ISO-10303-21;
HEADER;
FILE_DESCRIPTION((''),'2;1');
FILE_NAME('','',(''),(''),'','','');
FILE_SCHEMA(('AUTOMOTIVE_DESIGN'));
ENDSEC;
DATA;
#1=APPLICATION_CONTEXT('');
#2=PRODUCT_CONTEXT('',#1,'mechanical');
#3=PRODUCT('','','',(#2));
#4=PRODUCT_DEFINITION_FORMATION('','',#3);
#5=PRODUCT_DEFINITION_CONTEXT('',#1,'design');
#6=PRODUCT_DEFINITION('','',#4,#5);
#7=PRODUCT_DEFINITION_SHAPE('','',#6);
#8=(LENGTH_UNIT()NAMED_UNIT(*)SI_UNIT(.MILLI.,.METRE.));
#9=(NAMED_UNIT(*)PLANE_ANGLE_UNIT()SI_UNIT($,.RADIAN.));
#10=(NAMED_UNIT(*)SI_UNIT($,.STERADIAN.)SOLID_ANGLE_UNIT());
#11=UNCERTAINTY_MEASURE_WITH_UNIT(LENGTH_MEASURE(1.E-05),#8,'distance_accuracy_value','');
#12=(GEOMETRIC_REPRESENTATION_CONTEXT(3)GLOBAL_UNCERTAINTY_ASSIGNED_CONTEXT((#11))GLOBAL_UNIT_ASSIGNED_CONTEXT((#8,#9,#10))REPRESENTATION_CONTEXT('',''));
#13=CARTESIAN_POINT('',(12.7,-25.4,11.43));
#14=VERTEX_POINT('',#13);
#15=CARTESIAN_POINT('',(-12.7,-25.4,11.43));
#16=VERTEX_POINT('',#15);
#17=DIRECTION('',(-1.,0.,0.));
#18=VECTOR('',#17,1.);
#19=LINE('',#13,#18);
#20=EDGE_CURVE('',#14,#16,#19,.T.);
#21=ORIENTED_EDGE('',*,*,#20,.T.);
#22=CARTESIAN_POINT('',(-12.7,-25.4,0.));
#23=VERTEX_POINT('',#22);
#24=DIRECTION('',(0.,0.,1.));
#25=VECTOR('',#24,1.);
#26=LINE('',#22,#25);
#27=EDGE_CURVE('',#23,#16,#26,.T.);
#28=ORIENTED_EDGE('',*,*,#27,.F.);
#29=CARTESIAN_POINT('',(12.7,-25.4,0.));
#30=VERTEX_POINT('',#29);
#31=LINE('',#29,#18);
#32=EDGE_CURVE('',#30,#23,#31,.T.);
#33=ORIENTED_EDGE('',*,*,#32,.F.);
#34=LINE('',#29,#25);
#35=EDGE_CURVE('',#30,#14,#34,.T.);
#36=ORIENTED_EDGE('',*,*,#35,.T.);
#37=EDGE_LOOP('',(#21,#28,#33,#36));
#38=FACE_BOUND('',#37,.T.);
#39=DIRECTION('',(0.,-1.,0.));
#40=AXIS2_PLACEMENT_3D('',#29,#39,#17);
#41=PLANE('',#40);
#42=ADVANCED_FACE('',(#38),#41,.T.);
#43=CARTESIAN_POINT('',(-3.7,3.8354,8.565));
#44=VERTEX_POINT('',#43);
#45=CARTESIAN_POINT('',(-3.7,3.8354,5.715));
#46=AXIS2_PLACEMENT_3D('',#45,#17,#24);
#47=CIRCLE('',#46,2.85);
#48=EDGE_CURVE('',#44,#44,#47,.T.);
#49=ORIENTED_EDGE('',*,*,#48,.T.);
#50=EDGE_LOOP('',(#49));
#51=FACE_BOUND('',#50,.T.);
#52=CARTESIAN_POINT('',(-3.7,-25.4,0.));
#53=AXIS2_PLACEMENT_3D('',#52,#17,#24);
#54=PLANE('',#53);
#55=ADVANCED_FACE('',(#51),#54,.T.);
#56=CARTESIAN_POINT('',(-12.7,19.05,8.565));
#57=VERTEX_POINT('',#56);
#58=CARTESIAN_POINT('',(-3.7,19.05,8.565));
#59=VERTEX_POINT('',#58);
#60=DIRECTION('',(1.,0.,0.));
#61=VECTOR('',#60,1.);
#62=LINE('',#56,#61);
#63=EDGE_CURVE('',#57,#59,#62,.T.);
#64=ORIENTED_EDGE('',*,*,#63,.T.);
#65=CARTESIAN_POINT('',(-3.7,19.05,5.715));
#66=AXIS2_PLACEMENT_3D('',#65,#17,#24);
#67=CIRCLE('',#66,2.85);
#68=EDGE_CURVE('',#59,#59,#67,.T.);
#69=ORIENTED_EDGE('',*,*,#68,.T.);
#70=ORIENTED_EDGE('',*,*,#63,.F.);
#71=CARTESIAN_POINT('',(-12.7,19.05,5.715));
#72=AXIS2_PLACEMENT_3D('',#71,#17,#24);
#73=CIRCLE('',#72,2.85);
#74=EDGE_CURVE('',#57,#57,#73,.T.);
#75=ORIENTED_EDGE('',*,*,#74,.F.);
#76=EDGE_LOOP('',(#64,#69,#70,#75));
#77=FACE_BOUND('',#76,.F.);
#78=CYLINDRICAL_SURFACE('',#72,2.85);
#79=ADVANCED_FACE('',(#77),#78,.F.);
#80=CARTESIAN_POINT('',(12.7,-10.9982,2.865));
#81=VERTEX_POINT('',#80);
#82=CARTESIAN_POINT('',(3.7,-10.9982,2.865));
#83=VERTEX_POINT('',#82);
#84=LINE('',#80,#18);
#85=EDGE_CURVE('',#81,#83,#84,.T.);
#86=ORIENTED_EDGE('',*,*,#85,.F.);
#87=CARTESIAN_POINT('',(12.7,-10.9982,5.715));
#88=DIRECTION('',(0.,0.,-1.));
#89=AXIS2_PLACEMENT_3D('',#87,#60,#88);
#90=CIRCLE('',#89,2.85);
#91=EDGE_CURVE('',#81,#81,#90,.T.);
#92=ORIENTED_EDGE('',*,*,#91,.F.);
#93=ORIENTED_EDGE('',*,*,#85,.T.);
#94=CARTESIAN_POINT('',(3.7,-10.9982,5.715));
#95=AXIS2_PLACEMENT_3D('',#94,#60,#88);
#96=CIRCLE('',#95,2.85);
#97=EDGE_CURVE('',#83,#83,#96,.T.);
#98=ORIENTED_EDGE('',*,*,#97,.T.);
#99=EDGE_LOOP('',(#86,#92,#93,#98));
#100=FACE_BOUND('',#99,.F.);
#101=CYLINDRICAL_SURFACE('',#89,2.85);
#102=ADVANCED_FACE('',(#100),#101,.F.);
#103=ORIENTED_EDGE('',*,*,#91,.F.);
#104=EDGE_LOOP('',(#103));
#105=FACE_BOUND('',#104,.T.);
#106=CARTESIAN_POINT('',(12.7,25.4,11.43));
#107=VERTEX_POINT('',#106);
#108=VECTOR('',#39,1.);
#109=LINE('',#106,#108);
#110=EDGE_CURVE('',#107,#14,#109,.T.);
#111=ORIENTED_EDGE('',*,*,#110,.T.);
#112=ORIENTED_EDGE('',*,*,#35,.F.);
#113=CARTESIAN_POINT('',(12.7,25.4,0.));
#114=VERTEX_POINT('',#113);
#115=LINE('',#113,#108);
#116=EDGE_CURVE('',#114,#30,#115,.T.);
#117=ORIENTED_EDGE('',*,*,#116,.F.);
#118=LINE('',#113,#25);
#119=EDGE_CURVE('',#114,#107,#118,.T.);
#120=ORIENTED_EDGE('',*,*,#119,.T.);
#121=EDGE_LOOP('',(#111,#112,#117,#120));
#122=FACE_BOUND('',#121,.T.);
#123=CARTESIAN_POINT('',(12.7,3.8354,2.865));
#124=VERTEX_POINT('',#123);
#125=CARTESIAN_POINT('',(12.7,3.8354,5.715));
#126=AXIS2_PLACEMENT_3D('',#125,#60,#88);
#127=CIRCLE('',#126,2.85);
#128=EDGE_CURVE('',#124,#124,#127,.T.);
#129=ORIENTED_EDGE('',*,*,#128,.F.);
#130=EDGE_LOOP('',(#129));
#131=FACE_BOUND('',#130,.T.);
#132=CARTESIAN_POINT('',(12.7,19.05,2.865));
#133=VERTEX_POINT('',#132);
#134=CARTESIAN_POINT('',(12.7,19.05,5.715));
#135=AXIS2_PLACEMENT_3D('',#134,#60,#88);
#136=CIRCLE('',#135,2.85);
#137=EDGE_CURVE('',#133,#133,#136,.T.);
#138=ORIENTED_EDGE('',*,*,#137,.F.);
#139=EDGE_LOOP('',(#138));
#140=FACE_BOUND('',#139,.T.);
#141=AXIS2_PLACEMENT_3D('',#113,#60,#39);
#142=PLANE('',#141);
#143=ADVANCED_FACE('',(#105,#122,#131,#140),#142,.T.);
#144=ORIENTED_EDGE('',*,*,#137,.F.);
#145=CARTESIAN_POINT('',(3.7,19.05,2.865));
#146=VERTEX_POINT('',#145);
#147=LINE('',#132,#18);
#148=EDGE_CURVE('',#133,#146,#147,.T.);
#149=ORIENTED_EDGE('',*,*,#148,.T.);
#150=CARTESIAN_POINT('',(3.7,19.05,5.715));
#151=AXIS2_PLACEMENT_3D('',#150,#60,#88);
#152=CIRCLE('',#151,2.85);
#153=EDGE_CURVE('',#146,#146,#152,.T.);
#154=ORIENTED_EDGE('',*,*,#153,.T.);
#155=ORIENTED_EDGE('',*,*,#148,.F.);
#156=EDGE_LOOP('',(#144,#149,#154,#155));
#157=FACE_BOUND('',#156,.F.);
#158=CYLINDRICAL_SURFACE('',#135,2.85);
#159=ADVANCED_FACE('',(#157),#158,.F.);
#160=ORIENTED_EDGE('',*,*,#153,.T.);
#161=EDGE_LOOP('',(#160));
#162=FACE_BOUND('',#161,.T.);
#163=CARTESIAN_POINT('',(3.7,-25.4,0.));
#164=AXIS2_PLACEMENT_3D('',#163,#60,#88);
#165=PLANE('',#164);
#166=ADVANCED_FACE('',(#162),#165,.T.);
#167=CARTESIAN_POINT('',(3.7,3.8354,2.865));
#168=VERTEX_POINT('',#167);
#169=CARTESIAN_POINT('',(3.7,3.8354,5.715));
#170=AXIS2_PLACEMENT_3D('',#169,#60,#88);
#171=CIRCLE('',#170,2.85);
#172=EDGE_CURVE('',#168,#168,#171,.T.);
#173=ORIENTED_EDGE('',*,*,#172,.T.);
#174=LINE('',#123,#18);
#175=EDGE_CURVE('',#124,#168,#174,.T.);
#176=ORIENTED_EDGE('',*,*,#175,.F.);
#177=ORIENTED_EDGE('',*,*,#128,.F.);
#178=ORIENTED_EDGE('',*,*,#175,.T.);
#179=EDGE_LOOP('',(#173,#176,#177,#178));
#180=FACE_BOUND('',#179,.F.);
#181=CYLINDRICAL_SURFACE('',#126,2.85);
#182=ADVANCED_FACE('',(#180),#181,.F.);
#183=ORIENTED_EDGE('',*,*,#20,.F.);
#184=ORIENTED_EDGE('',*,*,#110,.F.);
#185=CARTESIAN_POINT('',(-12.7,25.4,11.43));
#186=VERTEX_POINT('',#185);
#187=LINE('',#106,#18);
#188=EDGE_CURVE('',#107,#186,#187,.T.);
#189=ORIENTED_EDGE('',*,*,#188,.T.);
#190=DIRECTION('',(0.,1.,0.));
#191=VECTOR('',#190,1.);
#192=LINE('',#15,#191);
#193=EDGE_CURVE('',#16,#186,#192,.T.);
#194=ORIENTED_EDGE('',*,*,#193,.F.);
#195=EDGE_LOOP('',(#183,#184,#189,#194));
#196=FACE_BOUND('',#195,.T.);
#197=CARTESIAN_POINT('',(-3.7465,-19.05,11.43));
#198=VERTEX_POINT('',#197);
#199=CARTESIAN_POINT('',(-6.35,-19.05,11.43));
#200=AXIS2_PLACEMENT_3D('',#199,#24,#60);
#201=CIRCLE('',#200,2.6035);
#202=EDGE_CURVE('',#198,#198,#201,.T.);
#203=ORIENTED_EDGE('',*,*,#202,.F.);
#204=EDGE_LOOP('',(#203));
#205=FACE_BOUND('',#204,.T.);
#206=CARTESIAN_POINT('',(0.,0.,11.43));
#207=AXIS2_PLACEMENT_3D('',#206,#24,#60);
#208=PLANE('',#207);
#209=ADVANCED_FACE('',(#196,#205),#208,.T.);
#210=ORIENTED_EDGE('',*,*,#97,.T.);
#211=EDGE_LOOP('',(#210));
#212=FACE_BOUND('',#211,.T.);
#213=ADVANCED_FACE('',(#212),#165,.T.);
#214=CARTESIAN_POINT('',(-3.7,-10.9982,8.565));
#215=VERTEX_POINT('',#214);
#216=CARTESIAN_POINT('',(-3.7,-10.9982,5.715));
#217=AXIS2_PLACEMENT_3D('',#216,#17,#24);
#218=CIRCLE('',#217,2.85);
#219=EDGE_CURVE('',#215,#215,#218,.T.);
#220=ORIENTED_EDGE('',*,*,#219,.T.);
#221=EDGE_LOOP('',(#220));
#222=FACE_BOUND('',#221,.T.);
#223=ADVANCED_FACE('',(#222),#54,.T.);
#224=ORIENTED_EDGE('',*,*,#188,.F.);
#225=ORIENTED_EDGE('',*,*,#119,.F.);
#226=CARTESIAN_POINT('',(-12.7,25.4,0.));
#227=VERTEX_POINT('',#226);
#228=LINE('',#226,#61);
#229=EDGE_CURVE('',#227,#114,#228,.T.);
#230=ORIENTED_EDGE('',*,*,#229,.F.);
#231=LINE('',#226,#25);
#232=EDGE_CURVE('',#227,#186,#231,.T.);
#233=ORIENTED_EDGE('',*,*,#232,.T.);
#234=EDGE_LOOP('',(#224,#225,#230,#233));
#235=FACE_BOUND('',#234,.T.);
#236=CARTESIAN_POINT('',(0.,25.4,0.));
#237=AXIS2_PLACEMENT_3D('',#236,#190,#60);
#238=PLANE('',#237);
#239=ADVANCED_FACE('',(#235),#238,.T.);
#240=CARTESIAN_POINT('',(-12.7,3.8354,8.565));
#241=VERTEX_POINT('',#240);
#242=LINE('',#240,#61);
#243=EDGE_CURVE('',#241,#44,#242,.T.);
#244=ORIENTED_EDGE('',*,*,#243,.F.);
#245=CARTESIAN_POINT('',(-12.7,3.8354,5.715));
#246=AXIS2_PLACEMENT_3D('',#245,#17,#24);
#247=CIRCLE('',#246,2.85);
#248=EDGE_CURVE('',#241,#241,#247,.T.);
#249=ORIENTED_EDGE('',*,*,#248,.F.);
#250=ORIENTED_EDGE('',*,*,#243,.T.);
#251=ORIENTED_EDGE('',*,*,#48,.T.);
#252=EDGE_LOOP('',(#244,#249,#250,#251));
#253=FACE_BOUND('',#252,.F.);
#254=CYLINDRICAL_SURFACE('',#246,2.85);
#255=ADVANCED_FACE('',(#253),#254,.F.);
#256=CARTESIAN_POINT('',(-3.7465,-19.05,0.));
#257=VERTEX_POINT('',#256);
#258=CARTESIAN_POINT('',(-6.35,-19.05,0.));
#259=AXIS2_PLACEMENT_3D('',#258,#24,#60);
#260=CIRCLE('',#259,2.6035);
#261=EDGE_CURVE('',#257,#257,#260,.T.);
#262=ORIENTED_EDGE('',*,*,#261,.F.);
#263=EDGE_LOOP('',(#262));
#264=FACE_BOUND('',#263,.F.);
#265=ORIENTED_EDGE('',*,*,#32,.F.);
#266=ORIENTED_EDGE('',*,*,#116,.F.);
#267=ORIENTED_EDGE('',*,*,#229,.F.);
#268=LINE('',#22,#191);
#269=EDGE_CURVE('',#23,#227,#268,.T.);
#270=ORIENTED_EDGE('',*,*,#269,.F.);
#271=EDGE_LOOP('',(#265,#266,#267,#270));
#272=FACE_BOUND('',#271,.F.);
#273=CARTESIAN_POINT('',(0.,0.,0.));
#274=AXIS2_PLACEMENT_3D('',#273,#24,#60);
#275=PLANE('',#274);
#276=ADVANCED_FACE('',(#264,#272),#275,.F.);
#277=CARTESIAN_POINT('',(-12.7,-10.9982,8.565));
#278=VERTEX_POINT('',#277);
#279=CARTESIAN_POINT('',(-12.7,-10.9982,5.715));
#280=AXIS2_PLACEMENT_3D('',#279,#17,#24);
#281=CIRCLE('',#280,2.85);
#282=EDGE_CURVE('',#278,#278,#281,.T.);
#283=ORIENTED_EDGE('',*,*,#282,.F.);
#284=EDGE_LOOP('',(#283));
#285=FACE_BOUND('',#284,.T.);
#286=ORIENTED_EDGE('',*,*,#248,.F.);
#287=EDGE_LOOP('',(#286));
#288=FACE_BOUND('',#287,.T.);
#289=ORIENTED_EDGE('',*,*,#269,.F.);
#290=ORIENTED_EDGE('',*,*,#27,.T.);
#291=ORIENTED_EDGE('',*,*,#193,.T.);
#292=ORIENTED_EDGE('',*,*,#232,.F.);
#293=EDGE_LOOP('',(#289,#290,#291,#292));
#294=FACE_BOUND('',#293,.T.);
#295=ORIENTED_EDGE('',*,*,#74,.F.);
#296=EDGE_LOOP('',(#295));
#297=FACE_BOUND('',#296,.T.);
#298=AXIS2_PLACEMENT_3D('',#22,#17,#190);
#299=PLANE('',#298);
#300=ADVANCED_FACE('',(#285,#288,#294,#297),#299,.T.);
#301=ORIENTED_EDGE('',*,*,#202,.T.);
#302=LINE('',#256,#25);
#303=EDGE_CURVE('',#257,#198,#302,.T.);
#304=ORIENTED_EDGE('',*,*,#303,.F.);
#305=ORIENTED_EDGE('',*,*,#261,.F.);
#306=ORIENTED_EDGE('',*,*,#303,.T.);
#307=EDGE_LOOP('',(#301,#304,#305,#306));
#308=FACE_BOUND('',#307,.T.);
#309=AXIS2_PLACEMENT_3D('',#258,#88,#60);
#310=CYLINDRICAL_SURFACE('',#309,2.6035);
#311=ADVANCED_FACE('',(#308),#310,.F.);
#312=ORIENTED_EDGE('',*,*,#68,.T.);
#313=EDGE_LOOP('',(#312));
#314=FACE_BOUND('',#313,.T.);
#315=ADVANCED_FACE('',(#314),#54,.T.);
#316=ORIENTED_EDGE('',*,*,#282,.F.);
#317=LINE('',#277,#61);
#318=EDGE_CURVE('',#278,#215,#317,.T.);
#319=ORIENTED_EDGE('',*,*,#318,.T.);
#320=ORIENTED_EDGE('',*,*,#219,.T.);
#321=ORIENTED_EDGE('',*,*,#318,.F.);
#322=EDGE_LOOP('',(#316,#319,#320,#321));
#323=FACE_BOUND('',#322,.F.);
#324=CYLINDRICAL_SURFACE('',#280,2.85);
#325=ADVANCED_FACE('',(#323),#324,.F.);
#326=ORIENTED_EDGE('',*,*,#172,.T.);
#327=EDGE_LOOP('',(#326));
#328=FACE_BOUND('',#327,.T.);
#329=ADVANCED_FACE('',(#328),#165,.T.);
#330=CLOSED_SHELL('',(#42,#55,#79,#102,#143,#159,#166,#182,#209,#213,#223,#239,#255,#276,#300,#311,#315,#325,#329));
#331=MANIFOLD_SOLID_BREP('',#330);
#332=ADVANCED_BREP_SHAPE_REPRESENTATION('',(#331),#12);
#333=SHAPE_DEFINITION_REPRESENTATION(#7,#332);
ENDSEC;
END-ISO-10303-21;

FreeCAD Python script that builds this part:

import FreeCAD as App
import Part
import Sketcher

V = App.Vector
Q = App.Units.Quantity

doc = App.newDocument("Part")
params = doc.addObject("Spreadsheet::Sheet", "Params")
for row, (alias, value) in enumerate([
    ("sketch1_width", "1 in"),
    ("sketch1_height", "2 in"),
    ("sketch1_diameter", "0.205 in"),
    ("pad1_length", "0.45 in"),
    ("pocket1_length", "9 mm"),
    ("pocket2_length", "9 mm"),
], start=1):
    params.set(f"A{row}", alias)
    params.set(f"B{row}", "=" + value)
    params.setAlias(f"B{row}", alias)

body = doc.addObject("PartDesign::Body", "Body")

# Sketch on XY plane
sketch1 = body.newObject("Sketcher::SketchObject", "Sketch")
sketch1.AttachmentSupport = (doc.getObject("XY_Plane"), [""])
sketch1.MapMode = "FlatFace"
sketch1.addGeometry(Part.LineSegment(V(-12.7, -25.4, 0), V(12.7, -25.4, 0)), False)
sketch1.addGeometry(Part.LineSegment(V(12.7, -25.4, 0), V(12.7, 25.4, 0)), False)
sketch1.addGeometry(Part.LineSegment(V(12.7, 25.4, 0), V(-12.7, 25.4, 0)), False)
sketch1.addGeometry(Part.LineSegment(V(-12.7, 25.4, 0), V(-12.7, -25.4, 0)), False)
sketch1.addGeometry(Part.Circle(V(-6.35, -19.05, 0), V(0, 0, 1), 2.6035), False)
sketch1.addConstraint(Sketcher.Constraint("Coincident", 0, 2, 1, 1))
sketch1.addConstraint(Sketcher.Constraint("Coincident", 1, 2, 2, 1))
sketch1.addConstraint(Sketcher.Constraint("Coincident", 2, 2, 3, 1))
sketch1.addConstraint(Sketcher.Constraint("Coincident", 3, 2, 0, 1))
sketch1.addConstraint(Sketcher.Constraint("Horizontal", 0))
sketch1.addConstraint(Sketcher.Constraint("Vertical", 1))
sketch1.addConstraint(Sketcher.Constraint("Horizontal", 2))
sketch1.addConstraint(Sketcher.Constraint("Vertical", 3))
sketch1.addConstraint(Sketcher.Constraint("Symmetric", 0, 2, 2, 2, -1, 1))
sketch1.addConstraint(Sketcher.Constraint("DistanceX", 0, 1, 0, 2, Q("1 in")))
sketch1.addConstraint(Sketcher.Constraint("DistanceY", 1, 1, 1, 2, Q("2 in")))
sketch1.addConstraint(Sketcher.Constraint("Diameter", 4, Q("0.205 in")))
sketch1.addConstraint(Sketcher.Constraint("DistanceX", 4, 3, -1, 1, Q("0.25 in")))
sketch1.addConstraint(Sketcher.Constraint("DistanceY", 0, 2, 4, 3, Q("0.25 in")))
sketch1.setExpression("Constraints[9]", "Params.sketch1_width")
sketch1.setExpression("Constraints[10]", "Params.sketch1_height")
sketch1.setExpression("Constraints[11]", "Params.sketch1_diameter")
pad1 = body.newObject("PartDesign::Pad", "Pad")
pad1.Profile = sketch1
pad1.setExpression("Length", "Params.pad1_length")

# Sketch on YZ plane
sketch2 = body.newObject("Sketcher::SketchObject", "Sketch001")
sketch2.AttachmentSupport = (doc.getObject("YZ_Plane"), [""])
sketch2.MapMode = "FlatFace"
sketch2.AttachmentOffset = App.Placement(V(0, 0, -0.5 * 25.4), App.Rotation())
sketch2.addGeometry(Part.Circle(V(19.05, 5.715, 0), V(0, 0, 1), 2.85), False)
sketch2.addGeometry(Part.Circle(V(3.8354, 5.715, 0), V(0, 0, 1), 2.85), False)
sketch2.addGeometry(Part.Circle(V(-10.9982, 5.715, 0), V(0, 0, 1), 2.85), False)
sketch2.addConstraint(Sketcher.Constraint("Equal", 0, 1))
sketch2.addConstraint(Sketcher.Constraint("Equal", 1, 2))
sketch2.addConstraint(Sketcher.Constraint("Horizontal", 0, 3, 1, 3))
sketch2.addConstraint(Sketcher.Constraint("Horizontal", 1, 3, 2, 3))
sketch2.addConstraint(Sketcher.Constraint("Diameter", 0, Q("0.2244 in")))
sketch2.addConstraint(Sketcher.Constraint("DistanceX", 1, 3, 0, 3, Q("0.599 in")))
sketch2.addConstraint(Sketcher.Constraint("DistanceX", 2, 3, 1, 3, Q("0.584 in")))
sketch2.addConstraint(Sketcher.Constraint("DistanceX", -1, 1, 0, 3, Q("0.75 in")))
sketch2.addConstraint(Sketcher.Constraint("DistanceY", -1, 1, 0, 3, Q("0.225 in")))
pocket1 = body.newObject("PartDesign::Pocket", "Pocket")
pocket1.Profile = sketch2
pocket1.setExpression("Length", "Params.pocket1_length")
pocket1.Reversed = True

# Sketch on YZ plane
sketch3 = body.newObject("Sketcher::SketchObject", "Sketch002")
sketch3.AttachmentSupport = (doc.getObject("YZ_Plane"), [""])
sketch3.MapMode = "FlatFace"
sketch3.AttachmentOffset = App.Placement(V(0, 0, 0.5 * 25.4), App.Rotation())
sketch3.addGeometry(Part.Circle(V(19.05, 5.715, 0), V(0, 0, 1), 2.85), False)
sketch3.addGeometry(Part.Circle(V(3.8354, 5.715, 0), V(0, 0, 1), 2.85), False)
sketch3.addGeometry(Part.Circle(V(-10.9982, 5.715, 0), V(0, 0, 1), 2.85), False)
sketch3.addConstraint(Sketcher.Constraint("Equal", 0, 1))
sketch3.addConstraint(Sketcher.Constraint("Equal", 1, 2))
sketch3.addConstraint(Sketcher.Constraint("Horizontal", 0, 3, 1, 3))
sketch3.addConstraint(Sketcher.Constraint("Horizontal", 1, 3, 2, 3))
sketch3.addConstraint(Sketcher.Constraint("Diameter", 0, Q("0.2244 in")))
sketch3.addConstraint(Sketcher.Constraint("DistanceX", -1, 1, 0, 3, Q("0.75 in")))
sketch3.addConstraint(Sketcher.Constraint("DistanceY", -1, 1, 0, 3, Q("0.225 in")))
sketch3.addConstraint(Sketcher.Constraint("DistanceX", -1, 1, 1, 3, Q("0.151 in")))
sketch3.addConstraint(Sketcher.Constraint("DistanceX", 2, 3, -1, 1, Q("0.433 in")))
pocket2 = body.newObject("PartDesign::Pocket", "Pocket001")
pocket2.Profile = sketch3
pocket2.setExpression("Length", "Params.pocket2_length")

doc.recompute()
